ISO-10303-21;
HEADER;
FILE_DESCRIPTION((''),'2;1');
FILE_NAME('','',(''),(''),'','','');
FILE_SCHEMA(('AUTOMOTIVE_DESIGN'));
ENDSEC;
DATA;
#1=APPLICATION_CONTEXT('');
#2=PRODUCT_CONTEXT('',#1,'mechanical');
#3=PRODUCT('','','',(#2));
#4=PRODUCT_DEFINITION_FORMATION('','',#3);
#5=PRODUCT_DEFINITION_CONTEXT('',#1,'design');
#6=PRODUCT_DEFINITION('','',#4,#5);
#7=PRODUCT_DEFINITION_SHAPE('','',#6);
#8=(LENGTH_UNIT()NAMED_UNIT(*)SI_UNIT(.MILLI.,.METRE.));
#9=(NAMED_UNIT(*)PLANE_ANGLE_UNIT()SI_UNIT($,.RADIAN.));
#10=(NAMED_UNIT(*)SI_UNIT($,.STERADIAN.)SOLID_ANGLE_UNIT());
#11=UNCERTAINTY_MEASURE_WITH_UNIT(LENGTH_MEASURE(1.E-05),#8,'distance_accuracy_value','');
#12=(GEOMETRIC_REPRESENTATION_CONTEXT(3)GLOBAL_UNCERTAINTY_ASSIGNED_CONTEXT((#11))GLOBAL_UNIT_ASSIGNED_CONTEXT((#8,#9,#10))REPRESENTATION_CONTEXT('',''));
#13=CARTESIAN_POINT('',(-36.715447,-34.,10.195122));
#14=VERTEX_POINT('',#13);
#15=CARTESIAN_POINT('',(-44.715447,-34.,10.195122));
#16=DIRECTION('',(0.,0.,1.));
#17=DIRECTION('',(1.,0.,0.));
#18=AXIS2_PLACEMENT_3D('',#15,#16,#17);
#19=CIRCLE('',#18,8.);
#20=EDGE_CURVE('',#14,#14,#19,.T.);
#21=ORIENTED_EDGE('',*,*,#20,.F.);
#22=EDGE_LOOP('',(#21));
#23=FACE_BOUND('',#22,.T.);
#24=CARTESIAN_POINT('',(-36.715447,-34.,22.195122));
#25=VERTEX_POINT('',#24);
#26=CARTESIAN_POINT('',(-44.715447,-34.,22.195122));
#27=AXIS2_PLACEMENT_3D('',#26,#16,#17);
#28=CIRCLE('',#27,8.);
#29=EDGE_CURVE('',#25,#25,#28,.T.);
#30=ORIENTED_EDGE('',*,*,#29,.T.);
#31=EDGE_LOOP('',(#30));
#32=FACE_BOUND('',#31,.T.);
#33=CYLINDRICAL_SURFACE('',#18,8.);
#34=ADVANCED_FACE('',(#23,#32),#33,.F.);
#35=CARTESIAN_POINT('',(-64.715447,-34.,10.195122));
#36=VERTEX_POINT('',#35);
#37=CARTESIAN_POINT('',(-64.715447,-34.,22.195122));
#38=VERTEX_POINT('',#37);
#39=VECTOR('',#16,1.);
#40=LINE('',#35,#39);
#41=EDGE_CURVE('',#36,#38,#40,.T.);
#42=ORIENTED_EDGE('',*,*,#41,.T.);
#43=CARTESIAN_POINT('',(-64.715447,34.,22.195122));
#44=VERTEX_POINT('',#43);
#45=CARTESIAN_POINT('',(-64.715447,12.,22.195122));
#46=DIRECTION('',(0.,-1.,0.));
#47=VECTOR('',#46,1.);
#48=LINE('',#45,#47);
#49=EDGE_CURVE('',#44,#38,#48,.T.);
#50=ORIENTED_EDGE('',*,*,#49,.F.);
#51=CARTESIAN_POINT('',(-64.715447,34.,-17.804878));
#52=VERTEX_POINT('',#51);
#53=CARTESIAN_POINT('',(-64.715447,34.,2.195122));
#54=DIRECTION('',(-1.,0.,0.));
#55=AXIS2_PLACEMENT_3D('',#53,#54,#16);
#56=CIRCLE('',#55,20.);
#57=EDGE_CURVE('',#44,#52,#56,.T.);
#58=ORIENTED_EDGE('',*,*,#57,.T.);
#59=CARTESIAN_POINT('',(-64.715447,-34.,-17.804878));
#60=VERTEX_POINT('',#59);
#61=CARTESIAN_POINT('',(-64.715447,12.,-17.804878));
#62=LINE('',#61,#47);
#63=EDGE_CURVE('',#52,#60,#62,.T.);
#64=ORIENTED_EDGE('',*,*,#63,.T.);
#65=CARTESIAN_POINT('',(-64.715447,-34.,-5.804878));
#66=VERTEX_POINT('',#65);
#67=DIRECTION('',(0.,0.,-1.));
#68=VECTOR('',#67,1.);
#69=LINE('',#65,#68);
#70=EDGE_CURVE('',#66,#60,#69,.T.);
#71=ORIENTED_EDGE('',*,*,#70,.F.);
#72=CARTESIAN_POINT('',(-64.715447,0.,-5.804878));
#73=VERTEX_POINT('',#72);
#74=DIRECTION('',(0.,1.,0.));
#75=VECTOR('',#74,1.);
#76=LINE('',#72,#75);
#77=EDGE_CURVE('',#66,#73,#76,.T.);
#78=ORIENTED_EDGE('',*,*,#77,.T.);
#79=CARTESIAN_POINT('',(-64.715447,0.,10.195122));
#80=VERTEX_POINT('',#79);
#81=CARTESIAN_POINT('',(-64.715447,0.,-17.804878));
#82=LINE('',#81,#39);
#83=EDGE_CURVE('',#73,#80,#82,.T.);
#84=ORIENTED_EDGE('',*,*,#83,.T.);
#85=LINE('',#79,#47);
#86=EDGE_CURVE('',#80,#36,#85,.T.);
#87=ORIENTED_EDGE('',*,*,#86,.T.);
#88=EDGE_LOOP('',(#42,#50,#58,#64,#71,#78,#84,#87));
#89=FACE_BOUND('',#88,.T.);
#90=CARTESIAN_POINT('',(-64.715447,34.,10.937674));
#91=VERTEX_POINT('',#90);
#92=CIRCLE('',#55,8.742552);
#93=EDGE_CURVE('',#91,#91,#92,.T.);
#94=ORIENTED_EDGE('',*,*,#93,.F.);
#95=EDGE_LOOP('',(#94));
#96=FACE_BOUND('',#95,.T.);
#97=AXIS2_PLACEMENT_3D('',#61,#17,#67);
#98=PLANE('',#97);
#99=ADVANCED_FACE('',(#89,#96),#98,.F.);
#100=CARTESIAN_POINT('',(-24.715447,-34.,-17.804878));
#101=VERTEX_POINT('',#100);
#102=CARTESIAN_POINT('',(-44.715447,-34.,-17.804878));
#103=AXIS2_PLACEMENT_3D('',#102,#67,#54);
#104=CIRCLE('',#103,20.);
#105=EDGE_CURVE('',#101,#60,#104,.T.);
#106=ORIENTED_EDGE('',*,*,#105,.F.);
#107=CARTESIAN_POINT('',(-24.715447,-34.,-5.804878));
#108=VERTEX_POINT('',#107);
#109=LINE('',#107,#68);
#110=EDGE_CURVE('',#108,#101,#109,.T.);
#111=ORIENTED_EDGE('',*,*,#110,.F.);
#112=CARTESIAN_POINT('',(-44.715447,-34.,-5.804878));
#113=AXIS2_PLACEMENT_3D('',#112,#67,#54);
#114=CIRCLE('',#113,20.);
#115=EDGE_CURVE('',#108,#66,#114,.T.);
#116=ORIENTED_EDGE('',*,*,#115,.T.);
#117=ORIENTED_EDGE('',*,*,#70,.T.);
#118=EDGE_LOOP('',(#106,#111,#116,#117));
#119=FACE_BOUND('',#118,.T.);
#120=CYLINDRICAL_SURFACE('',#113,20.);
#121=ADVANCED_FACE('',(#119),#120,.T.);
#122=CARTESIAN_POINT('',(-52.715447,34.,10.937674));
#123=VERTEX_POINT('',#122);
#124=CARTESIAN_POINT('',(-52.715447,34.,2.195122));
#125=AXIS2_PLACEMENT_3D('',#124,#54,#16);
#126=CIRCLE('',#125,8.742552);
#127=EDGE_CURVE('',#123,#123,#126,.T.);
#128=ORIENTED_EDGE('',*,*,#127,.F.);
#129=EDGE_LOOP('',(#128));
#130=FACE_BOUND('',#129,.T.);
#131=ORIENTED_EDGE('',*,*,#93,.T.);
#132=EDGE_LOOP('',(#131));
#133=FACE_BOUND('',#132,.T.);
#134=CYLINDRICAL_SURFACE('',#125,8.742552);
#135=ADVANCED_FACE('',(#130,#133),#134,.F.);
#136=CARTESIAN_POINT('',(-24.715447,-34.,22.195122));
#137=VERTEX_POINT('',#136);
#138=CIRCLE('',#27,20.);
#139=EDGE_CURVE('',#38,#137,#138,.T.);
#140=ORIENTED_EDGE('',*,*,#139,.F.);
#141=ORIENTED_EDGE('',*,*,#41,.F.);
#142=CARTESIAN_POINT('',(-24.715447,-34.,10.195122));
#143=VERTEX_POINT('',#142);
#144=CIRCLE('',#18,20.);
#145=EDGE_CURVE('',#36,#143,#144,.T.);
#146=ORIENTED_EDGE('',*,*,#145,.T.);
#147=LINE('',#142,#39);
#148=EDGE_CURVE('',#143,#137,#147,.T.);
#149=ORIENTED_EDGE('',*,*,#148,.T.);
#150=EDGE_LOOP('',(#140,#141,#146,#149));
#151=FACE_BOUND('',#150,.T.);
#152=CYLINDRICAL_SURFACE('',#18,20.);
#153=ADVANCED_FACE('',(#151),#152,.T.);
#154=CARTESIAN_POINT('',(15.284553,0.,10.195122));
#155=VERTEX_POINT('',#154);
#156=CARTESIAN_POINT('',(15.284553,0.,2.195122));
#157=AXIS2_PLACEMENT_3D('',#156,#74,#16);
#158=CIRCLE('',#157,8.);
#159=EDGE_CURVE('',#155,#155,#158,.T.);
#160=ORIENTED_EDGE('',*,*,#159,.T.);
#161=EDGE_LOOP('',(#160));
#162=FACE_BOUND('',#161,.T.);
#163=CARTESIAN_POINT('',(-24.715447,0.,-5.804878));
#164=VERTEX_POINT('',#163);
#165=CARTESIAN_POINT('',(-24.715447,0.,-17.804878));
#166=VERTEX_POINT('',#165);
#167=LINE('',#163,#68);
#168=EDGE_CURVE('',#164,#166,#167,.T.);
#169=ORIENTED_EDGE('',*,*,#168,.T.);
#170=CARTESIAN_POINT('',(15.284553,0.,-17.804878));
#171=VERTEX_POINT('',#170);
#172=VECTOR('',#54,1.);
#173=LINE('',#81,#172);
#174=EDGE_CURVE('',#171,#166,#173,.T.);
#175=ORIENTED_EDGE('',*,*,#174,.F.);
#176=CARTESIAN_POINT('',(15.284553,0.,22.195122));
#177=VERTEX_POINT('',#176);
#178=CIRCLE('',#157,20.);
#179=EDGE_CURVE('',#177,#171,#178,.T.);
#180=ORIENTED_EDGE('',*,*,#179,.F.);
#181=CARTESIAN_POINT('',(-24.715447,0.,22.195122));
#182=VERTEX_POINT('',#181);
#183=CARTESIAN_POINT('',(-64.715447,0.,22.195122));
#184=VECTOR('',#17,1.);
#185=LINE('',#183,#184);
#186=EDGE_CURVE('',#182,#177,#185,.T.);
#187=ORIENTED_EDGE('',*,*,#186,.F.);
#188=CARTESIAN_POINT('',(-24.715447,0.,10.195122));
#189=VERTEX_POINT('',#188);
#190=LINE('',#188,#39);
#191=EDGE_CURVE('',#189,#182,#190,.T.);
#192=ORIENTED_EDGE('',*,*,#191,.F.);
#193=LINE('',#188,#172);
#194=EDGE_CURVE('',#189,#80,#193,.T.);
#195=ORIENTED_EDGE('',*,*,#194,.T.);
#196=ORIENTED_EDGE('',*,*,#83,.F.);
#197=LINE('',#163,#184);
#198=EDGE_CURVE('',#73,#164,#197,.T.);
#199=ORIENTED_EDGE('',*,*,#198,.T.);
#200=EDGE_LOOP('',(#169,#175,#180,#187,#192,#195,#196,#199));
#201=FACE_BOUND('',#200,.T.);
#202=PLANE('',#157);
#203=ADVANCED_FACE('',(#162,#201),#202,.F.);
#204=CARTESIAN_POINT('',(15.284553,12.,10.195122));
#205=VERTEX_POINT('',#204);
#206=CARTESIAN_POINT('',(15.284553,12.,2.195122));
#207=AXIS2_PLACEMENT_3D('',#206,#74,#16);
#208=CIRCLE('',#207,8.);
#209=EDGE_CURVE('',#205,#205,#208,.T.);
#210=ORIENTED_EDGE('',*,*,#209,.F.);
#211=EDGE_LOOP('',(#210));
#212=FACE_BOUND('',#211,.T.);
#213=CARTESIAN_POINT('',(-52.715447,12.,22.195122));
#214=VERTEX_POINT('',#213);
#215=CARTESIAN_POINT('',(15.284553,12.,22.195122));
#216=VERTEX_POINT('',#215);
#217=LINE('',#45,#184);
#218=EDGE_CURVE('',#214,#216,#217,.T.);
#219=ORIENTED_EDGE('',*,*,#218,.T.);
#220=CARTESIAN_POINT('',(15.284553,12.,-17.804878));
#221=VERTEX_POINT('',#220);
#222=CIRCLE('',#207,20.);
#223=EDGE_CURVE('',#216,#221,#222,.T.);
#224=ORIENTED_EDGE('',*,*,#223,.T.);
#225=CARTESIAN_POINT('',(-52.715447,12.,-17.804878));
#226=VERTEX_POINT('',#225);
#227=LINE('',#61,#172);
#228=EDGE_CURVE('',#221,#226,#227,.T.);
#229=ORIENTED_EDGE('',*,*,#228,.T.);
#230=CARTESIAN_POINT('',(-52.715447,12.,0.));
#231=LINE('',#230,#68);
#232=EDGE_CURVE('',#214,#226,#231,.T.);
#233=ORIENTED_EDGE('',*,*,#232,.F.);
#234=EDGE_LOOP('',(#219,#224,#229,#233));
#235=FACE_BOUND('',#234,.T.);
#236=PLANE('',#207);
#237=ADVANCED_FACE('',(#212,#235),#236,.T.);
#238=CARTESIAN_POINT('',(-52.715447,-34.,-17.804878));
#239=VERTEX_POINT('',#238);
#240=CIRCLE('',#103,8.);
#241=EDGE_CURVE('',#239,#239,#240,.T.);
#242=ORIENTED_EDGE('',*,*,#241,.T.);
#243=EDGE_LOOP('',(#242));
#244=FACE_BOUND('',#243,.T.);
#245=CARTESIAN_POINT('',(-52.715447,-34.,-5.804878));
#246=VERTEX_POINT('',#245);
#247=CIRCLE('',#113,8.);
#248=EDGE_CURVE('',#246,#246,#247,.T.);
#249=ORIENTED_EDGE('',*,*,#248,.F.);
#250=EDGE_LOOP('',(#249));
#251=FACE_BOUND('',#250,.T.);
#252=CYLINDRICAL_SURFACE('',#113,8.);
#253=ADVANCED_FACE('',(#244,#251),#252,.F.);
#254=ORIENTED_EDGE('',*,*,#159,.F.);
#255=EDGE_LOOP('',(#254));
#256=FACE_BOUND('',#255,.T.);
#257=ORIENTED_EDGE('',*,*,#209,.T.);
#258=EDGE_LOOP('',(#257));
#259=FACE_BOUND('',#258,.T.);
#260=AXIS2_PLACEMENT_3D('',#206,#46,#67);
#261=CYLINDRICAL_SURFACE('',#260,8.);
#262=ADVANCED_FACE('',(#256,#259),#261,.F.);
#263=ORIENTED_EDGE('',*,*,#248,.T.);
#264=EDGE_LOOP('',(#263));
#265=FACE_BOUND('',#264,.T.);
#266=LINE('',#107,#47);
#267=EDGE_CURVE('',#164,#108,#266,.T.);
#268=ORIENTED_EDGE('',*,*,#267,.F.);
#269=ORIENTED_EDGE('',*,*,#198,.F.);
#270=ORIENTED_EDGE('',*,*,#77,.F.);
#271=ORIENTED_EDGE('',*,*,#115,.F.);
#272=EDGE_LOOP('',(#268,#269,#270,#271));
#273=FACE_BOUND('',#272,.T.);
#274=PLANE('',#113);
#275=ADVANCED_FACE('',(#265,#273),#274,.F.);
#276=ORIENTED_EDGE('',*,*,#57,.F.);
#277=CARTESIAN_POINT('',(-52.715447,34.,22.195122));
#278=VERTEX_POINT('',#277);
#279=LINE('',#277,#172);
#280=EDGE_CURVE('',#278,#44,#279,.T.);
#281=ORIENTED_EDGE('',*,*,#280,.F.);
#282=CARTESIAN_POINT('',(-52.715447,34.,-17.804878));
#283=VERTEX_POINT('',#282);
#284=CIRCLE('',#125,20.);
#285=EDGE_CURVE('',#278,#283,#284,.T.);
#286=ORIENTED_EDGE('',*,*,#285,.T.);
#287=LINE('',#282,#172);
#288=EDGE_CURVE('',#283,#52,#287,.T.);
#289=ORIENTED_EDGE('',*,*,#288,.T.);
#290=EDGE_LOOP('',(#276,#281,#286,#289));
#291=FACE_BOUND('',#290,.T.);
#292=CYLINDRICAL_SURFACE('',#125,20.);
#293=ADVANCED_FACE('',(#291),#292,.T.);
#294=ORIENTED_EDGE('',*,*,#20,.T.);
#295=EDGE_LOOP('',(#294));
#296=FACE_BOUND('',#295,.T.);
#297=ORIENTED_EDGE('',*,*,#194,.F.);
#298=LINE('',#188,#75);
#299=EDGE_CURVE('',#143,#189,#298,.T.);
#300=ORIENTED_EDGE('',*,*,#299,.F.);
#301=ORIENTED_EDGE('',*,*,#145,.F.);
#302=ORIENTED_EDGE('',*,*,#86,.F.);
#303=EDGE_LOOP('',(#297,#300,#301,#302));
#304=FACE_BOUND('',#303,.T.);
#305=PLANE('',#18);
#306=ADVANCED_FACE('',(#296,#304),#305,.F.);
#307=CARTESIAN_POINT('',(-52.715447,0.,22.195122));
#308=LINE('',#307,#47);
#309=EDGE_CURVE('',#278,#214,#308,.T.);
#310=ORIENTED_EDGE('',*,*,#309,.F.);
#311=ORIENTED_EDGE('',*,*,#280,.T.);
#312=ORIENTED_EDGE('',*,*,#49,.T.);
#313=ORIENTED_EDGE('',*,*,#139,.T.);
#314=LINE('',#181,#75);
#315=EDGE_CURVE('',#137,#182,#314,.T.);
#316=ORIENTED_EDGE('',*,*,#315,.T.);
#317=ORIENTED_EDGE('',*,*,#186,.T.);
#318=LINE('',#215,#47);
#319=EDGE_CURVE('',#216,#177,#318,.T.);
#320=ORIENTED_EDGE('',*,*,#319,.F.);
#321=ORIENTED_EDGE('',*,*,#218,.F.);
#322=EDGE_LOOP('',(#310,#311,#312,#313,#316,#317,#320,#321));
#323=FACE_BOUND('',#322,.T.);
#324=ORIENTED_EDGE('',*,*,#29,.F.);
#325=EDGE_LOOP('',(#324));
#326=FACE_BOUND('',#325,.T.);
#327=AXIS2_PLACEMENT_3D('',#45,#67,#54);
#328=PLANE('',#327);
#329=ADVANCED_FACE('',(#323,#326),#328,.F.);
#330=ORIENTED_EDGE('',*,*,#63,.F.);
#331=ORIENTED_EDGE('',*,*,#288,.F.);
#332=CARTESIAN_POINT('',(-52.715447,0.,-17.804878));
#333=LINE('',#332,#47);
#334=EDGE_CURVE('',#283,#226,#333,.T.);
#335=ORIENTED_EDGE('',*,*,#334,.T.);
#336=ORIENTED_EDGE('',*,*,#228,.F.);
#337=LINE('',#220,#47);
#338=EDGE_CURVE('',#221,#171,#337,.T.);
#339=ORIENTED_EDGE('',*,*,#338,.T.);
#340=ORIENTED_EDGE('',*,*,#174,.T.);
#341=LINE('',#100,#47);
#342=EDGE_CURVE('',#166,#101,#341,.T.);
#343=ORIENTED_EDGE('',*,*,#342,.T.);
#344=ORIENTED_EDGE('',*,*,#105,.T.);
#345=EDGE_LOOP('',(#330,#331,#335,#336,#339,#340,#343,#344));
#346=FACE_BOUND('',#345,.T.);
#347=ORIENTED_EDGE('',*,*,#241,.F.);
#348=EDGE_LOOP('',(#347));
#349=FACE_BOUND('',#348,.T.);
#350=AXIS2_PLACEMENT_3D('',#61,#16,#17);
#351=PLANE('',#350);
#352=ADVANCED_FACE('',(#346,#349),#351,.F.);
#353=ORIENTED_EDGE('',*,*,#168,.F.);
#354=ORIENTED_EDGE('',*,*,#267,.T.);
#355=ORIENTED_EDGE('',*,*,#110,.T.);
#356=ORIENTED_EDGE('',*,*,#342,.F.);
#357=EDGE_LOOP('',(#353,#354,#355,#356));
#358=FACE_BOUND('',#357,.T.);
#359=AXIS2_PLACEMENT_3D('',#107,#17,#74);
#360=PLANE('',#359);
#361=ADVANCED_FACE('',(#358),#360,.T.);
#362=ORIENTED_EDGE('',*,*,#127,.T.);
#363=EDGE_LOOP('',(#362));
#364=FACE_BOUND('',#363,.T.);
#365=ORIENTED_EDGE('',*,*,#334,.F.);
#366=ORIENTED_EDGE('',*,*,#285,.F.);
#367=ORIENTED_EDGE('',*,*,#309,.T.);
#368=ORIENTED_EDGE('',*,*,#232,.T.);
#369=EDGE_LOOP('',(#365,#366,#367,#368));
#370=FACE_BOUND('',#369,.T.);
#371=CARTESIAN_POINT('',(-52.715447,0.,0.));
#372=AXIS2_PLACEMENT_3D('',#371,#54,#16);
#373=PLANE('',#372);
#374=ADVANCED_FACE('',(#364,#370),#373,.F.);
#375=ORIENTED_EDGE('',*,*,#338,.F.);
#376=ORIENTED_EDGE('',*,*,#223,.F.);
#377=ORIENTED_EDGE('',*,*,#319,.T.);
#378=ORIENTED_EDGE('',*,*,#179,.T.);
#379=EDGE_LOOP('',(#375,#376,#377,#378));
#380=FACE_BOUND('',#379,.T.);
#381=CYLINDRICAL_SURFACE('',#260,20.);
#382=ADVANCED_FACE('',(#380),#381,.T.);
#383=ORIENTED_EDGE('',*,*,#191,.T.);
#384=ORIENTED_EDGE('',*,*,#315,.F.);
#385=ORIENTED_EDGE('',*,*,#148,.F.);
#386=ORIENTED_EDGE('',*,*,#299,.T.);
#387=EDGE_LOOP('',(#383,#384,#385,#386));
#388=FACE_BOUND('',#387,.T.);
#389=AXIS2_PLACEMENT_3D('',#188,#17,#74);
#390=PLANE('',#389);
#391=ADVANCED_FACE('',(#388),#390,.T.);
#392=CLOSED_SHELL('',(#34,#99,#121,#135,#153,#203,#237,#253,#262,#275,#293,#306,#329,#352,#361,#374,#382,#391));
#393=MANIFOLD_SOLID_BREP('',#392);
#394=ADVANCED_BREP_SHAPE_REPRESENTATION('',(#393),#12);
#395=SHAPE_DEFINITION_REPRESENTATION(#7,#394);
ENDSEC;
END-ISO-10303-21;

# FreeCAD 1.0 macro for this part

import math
import FreeCAD as App
import Part
import Sketcher
from FreeCAD import Vector
Q = App.Units.Quantity

doc = App.newDocument("Part")
body = doc.addObject("PartDesign::Body", "Body")

# Sketch on XZ plane
sketch1 = body.newObject("Sketcher::SketchObject", "Sketch")
sketch1.AttachmentSupport = (doc.getObject("XZ_Plane"), [""])
sketch1.MapMode = "FlatFace"
sketch1.addGeometry(Part.LineSegment(Vector(15.284553, -17.804878, 0), Vector(-64.715447, -17.804878, 0)), False)
sketch1.addGeometry(Part.LineSegment(Vector(-64.715447, -17.804878, 0), Vector(-64.715447, 22.195122, 0)), False)
sketch1.addGeometry(Part.LineSegment(Vector(-64.715447, 22.195122, 0), Vector(15.284553, 22.195122, 0)), False)
sketch1.addGeometry(Part.ArcOfCircle(Part.Circle(Vector(15.284553, 2.195122, 0), Vector(0, 0, 1), 20), math.radians(-90), math.radians(90)), False)
sketch1.addGeometry(Part.Circle(Vector(15.284553, 2.195122, 0), Vector(0, 0, 1), 8), False)
sketch1.addConstraint(Sketcher.Constraint("Coincident", 0, 2, 1, 1))
sketch1.addConstraint(Sketcher.Constraint("Coincident", 1, 2, 2, 1))
sketch1.addConstraint(Sketcher.Constraint("Tangent", 2, 2, 3, 2))
sketch1.addConstraint(Sketcher.Constraint("Tangent", 3, 1, 0, 1))
sketch1.addConstraint(Sketcher.Constraint("Horizontal", 0))
sketch1.addConstraint(Sketcher.Constraint("Vertical", 1))
sketch1.addConstraint(Sketcher.Constraint("Horizontal", 2))
sketch1.addConstraint(Sketcher.Constraint("Coincident", 4, 3, 3, 3))
sketch1.addConstraint(Sketcher.Constraint("Diameter", 4, Q("16 mm")))
sketch1.addConstraint(Sketcher.Constraint("Radius", 3, Q("20 mm")))
sketch1.addConstraint(Sketcher.Constraint("DistanceX", 0, 2, 0, 1, Q("80 mm")))
sketch1.addConstraint(Sketcher.Constraint("DistanceY", -1, 1, 3, 3, Q("2.195122 mm")))
sketch1.addConstraint(Sketcher.Constraint("DistanceX", -1, 1, 3, 3, Q("15.284553 mm")))
pad1 = body.newObject("PartDesign::Pad", "Pad")
pad1.Profile = sketch1
pad1.Length = 12
pad1.Reversed = True

# Sketch on YZ plane
sketch2 = body.newObject("Sketcher::SketchObject", "Sketch001")
sketch2.AttachmentSupport = (doc.getObject("YZ_Plane"), [""])
sketch2.MapMode = "FlatFace"
sketch2.AttachmentOffset = App.Placement(Vector(0, 0, -64.715447), App.Rotation())
sketch2.addGeometry(Part.ArcOfCircle(Part.Circle(Vector(34, 2.195122, 0), Vector(0, 0, 1), 20), math.radians(-90), math.radians(90)), False)
sketch2.addGeometry(Part.LineSegment(Vector(34, -17.804878, 0), Vector(12, -17.804878, 0)), False)
sketch2.addGeometry(Part.LineSegment(Vector(12, -17.804878, 0), Vector(12, 22.195122, 0)), False)
sketch2.addGeometry(Part.LineSegment(Vector(12, 22.195122, 0), Vector(34, 22.195122, 0)), False)
sketch2.addGeometry(Part.Circle(Vector(34, 2.195122, 0), Vector(0, 0, 1), 8.742552), False)
sketch2.addConstraint(Sketcher.Constraint("Tangent", 0, 1, 1, 1))
sketch2.addConstraint(Sketcher.Constraint("Coincident", 1, 2, 2, 1))
sketch2.addConstraint(Sketcher.Constraint("Coincident", 2, 2, 3, 1))
sketch2.addConstraint(Sketcher.Constraint("Tangent", 3, 2, 0, 2))
sketch2.addConstraint(Sketcher.Constraint("Horizontal", 1))
sketch2.addConstraint(Sketcher.Constraint("Vertical", 2))
sketch2.addConstraint(Sketcher.Constraint("Horizontal", 3))
sketch2.addConstraint(Sketcher.Constraint("Coincident", 4, 3, 0, 3))
sketch2.addConstraint(Sketcher.Constraint("Radius", 0, Q("20 mm")))
sketch2.addConstraint(Sketcher.Constraint("DistanceX", 1, 2, 1, 1, Q("22 mm")))
sketch2.addConstraint(Sketcher.Constraint("DistanceX", -1, 1, 0, 3, Q("34 mm")))
sketch2.addConstraint(Sketcher.Constraint("Diameter", 4, Q("17.485103 mm")))
sketch2.addConstraint(Sketcher.Constraint("DistanceY", -1, 1, 0, 3, Q("2.195122 mm")))
pad2 = body.newObject("PartDesign::Pad", "Pad001")
pad2.Profile = sketch2
pad2.Length = 12

# Sketch on XY plane
sketch3 = body.newObject("Sketcher::SketchObject", "Sketch002")
sketch3.AttachmentSupport = (doc.getObject("XY_Plane"), [""])
sketch3.MapMode = "FlatFace"
sketch3.AttachmentOffset = App.Placement(Vector(0, 0, -17.804878), App.Rotation())
sketch3.addGeometry(Part.LineSegment(Vector(-64.715447, -34, 0), Vector(-64.715447, 0, 0)), False)
sketch3.addGeometry(Part.LineSegment(Vector(-64.715447, 0, 0), Vector(-24.715447, 0, 0)), False)
sketch3.addGeometry(Part.LineSegment(Vector(-24.715447, 0, 0), Vector(-24.715447, -34, 0)), False)
sketch3.addGeometry(Part.ArcOfCircle(Part.Circle(Vector(-44.715447, -34, 0), Vector(0, 0, 1), 20), math.radians(180), math.radians(360)), False)
sketch3.addGeometry(Part.Circle(Vector(-44.715447, -34, 0), Vector(0, 0, 1), 8), False)
sketch3.addConstraint(Sketcher.Constraint("Coincident", 0, 2, 1, 1))
sketch3.addConstraint(Sketcher.Constraint("Coincident", 1, 2, 2, 1))
sketch3.addConstraint(Sketcher.Constraint("Tangent", 2, 2, 3, 2))
sketch3.addConstraint(Sketcher.Constraint("Tangent", 3, 1, 0, 1))
sketch3.addConstraint(Sketcher.Constraint("Vertical", 0))
sketch3.addConstraint(Sketcher.Constraint("Horizontal", 1))
sketch3.addConstraint(Sketcher.Constraint("Vertical", 2))
sketch3.addConstraint(Sketcher.Constraint("Coincident", 4, 3, 3, 3))
sketch3.addConstraint(Sketcher.Constraint("PointOnObject", 0, 2, -1))
sketch3.addConstraint(Sketcher.Constraint("Diameter", 4, Q("16 mm")))
sketch3.addConstraint(Sketcher.Constraint("Radius", 3, Q("20 mm")))
sketch3.addConstraint(Sketcher.Constraint("DistanceY", 0, 1, 0, 2, Q("34 mm")))
sketch3.addConstraint(Sketcher.Constraint("DistanceX", 3, 3, -1, 1, Q("44.715447 mm")))
pad3 = body.newObject("PartDesign::Pad", "Pad002")
pad3.Profile = sketch3
pad3.Length = 12

# Sketch on XY plane
sketch4 = body.newObject("Sketcher::SketchObject", "Sketch003")
sketch4.AttachmentSupport = (doc.getObject("XY_Plane"), [""])
sketch4.MapMode = "FlatFace"
sketch4.AttachmentOffset = App.Placement(Vector(0, 0, 22.195122), App.Rotation())
sketch4.addGeometry(Part.LineSegment(Vector(-64.715447, 0, 0), Vector(-64.715447, -34, 0)), False)
sketch4.addGeometry(Part.ArcOfCircle(Part.Circle(Vector(-44.715447, -34, 0), Vector(0, 0, 1), 20), math.radians(180), math.radians(360)), False)
sketch4.addGeometry(Part.LineSegment(Vector(-24.715447, -34, 0), Vector(-24.715447, 0, 0)), False)
sketch4.addGeometry(Part.LineSegment(Vector(-24.715447, 0, 0), Vector(-64.715447, 0, 0)), False)
sketch4.addGeometry(Part.Circle(Vector(-44.715447, -34, 0), Vector(0, 0, 1), 8), False)
sketch4.addConstraint(Sketcher.Constraint("Tangent", 0, 2, 1, 1))
sketch4.addConstraint(Sketcher.Constraint("Tangent", 1, 2, 2, 1))
sketch4.addConstraint(Sketcher.Constraint("Coincident", 2, 2, 3, 1))
sketch4.addConstraint(Sketcher.Constraint("Coincident", 3, 2, 0, 1))
sketch4.addConstraint(Sketcher.Constraint("Vertical", 0))
sketch4.addConstraint(Sketcher.Constraint("Vertical", 2))
sketch4.addConstraint(Sketcher.Constraint("Horizontal", 3))
sketch4.addConstraint(Sketcher.Constraint("Coincident", 4, 3, 1, 3))
sketch4.addConstraint(Sketcher.Constraint("PointOnObject", 2, 2, -1))
sketch4.addConstraint(Sketcher.Constraint("Diameter", 4, Q("16 mm")))
sketch4.addConstraint(Sketcher.Constraint("Radius", 1, Q("20 mm")))
sketch4.addConstraint(Sketcher.Constraint("DistanceY", 0, 2, 0, 1, Q("34 mm")))
sketch4.addConstraint(Sketcher.Constraint("DistanceX", 1, 3, -1, 1, Q("44.715447 mm")))
pad4 = body.newObject("PartDesign::Pad", "Pad003")
pad4.Profile = sketch4
pad4.Length = 12
pad4.Reversed = True

doc.recompute()
